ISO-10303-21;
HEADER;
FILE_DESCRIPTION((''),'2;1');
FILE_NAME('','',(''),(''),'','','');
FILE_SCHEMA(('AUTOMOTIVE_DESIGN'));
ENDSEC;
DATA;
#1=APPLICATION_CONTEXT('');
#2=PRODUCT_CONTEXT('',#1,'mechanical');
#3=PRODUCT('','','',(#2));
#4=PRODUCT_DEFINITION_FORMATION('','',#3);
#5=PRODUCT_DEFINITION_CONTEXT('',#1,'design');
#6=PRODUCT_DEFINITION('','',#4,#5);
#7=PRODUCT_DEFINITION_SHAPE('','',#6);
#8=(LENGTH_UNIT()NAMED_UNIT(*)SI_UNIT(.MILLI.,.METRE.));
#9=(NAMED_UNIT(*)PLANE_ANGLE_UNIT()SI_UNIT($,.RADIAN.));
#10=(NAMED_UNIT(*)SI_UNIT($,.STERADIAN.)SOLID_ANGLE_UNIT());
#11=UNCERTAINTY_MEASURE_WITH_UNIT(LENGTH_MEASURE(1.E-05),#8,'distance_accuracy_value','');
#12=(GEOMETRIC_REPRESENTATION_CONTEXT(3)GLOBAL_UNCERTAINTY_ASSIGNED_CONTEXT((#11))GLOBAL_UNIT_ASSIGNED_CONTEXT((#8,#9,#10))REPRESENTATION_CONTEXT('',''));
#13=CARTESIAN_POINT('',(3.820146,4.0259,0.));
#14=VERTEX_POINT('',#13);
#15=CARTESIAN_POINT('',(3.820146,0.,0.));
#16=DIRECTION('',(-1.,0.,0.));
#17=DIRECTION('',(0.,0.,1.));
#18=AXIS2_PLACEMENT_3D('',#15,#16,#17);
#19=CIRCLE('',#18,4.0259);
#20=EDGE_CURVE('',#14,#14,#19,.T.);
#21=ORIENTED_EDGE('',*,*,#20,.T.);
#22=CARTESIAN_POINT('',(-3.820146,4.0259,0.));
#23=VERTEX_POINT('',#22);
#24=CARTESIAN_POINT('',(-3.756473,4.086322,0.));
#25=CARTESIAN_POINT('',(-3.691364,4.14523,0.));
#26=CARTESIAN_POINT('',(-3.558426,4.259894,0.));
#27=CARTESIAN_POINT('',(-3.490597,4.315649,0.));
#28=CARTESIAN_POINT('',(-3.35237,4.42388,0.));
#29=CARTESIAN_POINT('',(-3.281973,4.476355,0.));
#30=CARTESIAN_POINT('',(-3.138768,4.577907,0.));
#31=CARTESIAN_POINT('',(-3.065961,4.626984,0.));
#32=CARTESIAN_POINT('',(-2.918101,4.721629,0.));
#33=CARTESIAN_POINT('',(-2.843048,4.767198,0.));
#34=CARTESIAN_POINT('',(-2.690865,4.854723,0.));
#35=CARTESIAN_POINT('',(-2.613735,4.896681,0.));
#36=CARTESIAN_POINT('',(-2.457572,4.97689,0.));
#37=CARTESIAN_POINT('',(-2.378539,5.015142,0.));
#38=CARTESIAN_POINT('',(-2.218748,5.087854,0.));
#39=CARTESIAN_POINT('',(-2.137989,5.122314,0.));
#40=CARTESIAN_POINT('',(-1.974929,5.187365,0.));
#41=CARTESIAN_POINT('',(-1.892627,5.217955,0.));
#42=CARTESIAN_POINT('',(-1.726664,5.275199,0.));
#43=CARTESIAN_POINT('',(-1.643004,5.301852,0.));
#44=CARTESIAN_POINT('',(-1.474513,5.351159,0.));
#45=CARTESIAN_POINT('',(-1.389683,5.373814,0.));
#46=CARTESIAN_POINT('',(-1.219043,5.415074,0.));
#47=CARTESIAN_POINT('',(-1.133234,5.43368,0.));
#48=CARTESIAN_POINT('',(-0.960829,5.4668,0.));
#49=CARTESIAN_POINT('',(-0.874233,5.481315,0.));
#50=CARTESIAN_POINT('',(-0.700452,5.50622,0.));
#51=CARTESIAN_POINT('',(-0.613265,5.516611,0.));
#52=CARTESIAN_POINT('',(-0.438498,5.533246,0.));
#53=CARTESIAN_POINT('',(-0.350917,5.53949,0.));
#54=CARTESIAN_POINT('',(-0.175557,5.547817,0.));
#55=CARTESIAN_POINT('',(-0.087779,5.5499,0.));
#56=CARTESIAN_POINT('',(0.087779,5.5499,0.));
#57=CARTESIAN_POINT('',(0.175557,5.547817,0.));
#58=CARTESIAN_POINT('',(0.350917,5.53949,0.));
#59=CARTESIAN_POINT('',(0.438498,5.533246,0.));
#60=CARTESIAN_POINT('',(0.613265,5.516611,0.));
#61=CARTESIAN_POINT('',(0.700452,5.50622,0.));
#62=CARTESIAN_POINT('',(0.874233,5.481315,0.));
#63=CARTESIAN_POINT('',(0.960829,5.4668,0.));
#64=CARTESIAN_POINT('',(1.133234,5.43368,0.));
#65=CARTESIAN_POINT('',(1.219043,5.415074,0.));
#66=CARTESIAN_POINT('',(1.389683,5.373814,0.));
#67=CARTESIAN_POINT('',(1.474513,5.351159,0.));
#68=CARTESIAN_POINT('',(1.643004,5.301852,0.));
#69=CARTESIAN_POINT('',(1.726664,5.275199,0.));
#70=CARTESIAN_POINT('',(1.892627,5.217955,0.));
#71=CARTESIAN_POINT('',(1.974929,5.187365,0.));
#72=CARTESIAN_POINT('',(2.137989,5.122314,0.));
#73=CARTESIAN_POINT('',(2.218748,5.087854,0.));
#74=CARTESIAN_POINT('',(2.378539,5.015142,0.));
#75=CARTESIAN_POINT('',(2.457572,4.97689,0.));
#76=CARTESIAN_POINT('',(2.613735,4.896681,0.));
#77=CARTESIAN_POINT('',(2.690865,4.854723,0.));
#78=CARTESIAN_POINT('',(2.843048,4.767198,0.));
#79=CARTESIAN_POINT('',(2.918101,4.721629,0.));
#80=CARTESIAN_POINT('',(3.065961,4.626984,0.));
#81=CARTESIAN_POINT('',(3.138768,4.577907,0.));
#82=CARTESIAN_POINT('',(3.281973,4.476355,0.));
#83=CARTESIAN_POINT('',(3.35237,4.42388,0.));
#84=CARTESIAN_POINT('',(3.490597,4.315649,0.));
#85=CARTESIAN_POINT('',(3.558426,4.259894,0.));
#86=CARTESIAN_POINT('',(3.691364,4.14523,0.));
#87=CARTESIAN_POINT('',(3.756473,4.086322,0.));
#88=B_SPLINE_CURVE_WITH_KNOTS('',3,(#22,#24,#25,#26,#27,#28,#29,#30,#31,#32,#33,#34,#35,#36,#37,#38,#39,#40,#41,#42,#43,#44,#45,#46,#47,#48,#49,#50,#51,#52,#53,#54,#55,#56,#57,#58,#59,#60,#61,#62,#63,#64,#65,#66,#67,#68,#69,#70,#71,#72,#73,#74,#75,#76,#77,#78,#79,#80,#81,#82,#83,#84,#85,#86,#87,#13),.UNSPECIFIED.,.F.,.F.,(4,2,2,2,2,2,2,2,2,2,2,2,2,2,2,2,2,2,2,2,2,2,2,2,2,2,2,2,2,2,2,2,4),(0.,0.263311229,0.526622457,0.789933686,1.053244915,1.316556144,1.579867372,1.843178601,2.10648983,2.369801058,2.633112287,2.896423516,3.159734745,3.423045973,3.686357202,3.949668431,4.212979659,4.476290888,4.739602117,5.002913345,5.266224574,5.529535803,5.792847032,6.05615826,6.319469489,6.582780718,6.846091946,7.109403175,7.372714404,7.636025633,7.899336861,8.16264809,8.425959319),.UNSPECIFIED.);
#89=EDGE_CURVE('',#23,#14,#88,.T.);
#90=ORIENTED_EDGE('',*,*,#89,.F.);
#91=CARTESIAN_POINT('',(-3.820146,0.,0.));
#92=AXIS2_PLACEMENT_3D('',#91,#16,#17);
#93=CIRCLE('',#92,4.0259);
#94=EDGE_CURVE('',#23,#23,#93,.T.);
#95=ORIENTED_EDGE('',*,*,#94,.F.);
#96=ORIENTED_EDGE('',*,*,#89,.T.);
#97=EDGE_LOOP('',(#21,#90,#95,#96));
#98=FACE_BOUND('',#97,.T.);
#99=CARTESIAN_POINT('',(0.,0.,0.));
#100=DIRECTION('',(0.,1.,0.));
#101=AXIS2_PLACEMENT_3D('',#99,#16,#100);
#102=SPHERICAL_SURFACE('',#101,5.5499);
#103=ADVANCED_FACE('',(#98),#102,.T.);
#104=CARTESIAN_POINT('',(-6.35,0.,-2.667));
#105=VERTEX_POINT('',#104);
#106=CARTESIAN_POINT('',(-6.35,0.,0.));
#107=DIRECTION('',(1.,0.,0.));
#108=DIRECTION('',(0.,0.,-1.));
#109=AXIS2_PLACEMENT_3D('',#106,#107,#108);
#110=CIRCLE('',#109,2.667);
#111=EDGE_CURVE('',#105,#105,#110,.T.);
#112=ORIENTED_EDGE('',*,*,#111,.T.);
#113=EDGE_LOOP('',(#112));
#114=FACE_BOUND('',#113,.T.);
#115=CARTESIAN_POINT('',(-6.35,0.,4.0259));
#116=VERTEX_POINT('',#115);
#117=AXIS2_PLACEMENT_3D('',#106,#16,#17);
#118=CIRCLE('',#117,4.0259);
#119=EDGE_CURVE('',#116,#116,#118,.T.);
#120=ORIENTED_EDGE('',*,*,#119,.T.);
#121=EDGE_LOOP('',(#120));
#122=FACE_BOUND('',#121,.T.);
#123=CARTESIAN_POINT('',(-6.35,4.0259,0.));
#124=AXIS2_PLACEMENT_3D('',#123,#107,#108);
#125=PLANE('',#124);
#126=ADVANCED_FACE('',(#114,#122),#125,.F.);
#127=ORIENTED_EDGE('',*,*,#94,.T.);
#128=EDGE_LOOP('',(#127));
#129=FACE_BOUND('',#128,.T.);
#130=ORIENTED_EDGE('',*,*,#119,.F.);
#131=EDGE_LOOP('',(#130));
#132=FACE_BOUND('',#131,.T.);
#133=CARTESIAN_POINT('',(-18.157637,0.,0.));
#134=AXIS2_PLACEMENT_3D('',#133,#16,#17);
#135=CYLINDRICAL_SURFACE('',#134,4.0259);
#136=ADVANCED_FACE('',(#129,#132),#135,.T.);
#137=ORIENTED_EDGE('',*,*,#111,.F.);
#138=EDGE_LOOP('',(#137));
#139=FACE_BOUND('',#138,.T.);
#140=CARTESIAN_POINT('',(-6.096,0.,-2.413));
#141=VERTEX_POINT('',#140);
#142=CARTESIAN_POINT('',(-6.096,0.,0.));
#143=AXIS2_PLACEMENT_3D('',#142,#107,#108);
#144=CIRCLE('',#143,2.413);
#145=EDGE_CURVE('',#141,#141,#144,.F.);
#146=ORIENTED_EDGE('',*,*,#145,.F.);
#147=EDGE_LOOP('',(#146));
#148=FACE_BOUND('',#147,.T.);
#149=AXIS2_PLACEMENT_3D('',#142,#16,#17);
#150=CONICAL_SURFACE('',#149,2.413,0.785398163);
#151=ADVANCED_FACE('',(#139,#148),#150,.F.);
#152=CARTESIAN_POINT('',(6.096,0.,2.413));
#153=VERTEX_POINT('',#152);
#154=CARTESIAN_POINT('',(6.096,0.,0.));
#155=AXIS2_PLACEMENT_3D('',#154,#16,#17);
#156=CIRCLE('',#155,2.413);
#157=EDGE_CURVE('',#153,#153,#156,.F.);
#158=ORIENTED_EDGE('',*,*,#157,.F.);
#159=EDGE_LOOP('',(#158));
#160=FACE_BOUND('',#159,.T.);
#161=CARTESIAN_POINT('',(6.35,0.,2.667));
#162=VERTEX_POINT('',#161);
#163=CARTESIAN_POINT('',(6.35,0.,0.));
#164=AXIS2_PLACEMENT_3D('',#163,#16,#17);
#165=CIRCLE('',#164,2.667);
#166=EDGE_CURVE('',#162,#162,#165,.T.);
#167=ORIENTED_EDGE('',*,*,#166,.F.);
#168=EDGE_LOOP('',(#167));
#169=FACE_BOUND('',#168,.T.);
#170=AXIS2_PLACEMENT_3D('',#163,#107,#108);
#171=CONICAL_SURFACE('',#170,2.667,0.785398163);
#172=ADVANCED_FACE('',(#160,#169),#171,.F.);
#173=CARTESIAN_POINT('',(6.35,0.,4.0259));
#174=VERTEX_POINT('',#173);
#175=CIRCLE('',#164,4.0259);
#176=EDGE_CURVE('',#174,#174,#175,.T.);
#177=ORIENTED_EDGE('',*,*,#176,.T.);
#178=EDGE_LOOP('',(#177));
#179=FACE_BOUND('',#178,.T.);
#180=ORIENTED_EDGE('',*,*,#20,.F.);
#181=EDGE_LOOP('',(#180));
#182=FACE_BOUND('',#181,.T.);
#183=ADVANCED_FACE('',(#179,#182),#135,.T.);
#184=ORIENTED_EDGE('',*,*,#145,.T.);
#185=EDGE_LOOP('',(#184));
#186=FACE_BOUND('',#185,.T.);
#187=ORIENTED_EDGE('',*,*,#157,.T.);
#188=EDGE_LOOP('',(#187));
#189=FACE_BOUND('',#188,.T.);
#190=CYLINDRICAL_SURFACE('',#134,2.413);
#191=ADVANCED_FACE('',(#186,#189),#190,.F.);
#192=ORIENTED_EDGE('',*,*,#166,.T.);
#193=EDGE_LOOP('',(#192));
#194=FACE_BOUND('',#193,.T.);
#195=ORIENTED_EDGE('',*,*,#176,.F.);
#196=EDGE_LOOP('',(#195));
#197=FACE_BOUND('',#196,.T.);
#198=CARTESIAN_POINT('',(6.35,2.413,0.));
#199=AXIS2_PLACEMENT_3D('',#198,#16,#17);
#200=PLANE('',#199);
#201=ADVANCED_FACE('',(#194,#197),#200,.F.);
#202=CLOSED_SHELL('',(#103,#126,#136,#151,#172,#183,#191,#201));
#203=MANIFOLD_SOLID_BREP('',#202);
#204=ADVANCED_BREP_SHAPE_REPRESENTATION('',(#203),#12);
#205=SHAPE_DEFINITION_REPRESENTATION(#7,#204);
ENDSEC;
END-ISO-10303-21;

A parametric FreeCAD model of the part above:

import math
import FreeCAD as App
import Part
import Sketcher
from FreeCAD import Vector
Q = App.Units.Quantity


def edges_at(feature, points):
    """Names of the edges that pass closest to the given points."""
    edges = feature.Shape.Edges
    near = lambda p: min(range(len(edges)), key=lambda i: edges[i].distToShape(Part.Vertex(*p))[0])
    return sorted({f"Edge{near(p) + 1}" for p in points})

doc = App.newDocument("Part")
body = doc.addObject("PartDesign::Body", "Body")

# Sketch on XY plane
sketch1 = doc.addObject("Sketcher::SketchObject", "Sketch")
body.addObject(sketch1)
sketch1.AttachmentSupport = (doc.XY_Plane, [""])
sketch1.MapMode = "FlatFace"
sketch1.addGeometry(Part.LineSegment(Vector(-6.3, 4, 0), Vector(-6.3, 2.4, 0)), False)
sketch1.addGeometry(Part.LineSegment(Vector(-6.3, 2.4, 0), Vector(6.3, 2.4, 0)), False)
sketch1.addGeometry(Part.LineSegment(Vector(6.3, 2.4, 0), Vector(6.3, 4, 0)), False)
sketch1.addGeometry(Part.LineSegment(Vector(6.3, 4, 0), Vector(3.8, 4, 0)), False)
sketch1.addGeometry(Part.ArcOfCircle(Part.Circle(Vector(0, 0, 0), Vector(0, 0, 1), 5.5), math.radians(47), math.radians(133)), False)
sketch1.addGeometry(Part.LineSegment(Vector(-3.8, 4, 0), Vector(-6.3, 4, 0)), False)
sketch1.addConstraint(Sketcher.Constraint("Coincident", 0, 2, 1, 1))
sketch1.addConstraint(Sketcher.Constraint("Coincident", 1, 2, 2, 1))
sketch1.addConstraint(Sketcher.Constraint("Coincident", 2, 2, 3, 1))
sketch1.addConstraint(Sketcher.Constraint("Coincident", 3, 2, 4, 1))
sketch1.addConstraint(Sketcher.Constraint("Coincident", 4, 2, 5, 1))
sketch1.addConstraint(Sketcher.Constraint("Coincident", 5, 2, 0, 1))
sketch1.addConstraint(Sketcher.Constraint("Vertical", 0))
sketch1.addConstraint(Sketcher.Constraint("Horizontal", 1))
sketch1.addConstraint(Sketcher.Constraint("Vertical", 2))
sketch1.addConstraint(Sketcher.Constraint("Horizontal", 3))
sketch1.addConstraint(Sketcher.Constraint("Horizontal", 5))
sketch1.addConstraint(Sketcher.Constraint("Coincident", 4, 3, -1, 1))
sketch1.addConstraint(Sketcher.Constraint("Symmetric", 2, 2, 5, 2, -2))
sketch1.addConstraint(Sketcher.Constraint("DistanceX", 1, 1, 1, 2, Q("0.5 in")))
sketch1.addConstraint(Sketcher.Constraint("Radius", 4, Q("0.2185 in")))
sketch1.addConstraint(Sketcher.Constraint("DistanceY", 0, 2, 0, 1, Q("0.0635 in")))
sketch1.addConstraint(Sketcher.Constraint("DistanceY", -1, 1, 0, 2, Q("0.095 in")))
revolution = doc.addObject("PartDesign::Revolution", "Revolution")
body.addObject(revolution)
revolution.Profile = sketch1
revolution.ReferenceAxis = (sketch1, ["H_Axis"])
revolution.Angle = 360
doc.recompute()

chamfer = doc.addObject("PartDesign::Chamfer", "Chamfer")
body.addObject(chamfer)
chamfer.Base = (revolution, edges_at(revolution, [(-6.35, 0, -2.413), (6.35, 0, -2.413)]))
chamfer.Size = Q("0.01 in")

doc.recompute()
